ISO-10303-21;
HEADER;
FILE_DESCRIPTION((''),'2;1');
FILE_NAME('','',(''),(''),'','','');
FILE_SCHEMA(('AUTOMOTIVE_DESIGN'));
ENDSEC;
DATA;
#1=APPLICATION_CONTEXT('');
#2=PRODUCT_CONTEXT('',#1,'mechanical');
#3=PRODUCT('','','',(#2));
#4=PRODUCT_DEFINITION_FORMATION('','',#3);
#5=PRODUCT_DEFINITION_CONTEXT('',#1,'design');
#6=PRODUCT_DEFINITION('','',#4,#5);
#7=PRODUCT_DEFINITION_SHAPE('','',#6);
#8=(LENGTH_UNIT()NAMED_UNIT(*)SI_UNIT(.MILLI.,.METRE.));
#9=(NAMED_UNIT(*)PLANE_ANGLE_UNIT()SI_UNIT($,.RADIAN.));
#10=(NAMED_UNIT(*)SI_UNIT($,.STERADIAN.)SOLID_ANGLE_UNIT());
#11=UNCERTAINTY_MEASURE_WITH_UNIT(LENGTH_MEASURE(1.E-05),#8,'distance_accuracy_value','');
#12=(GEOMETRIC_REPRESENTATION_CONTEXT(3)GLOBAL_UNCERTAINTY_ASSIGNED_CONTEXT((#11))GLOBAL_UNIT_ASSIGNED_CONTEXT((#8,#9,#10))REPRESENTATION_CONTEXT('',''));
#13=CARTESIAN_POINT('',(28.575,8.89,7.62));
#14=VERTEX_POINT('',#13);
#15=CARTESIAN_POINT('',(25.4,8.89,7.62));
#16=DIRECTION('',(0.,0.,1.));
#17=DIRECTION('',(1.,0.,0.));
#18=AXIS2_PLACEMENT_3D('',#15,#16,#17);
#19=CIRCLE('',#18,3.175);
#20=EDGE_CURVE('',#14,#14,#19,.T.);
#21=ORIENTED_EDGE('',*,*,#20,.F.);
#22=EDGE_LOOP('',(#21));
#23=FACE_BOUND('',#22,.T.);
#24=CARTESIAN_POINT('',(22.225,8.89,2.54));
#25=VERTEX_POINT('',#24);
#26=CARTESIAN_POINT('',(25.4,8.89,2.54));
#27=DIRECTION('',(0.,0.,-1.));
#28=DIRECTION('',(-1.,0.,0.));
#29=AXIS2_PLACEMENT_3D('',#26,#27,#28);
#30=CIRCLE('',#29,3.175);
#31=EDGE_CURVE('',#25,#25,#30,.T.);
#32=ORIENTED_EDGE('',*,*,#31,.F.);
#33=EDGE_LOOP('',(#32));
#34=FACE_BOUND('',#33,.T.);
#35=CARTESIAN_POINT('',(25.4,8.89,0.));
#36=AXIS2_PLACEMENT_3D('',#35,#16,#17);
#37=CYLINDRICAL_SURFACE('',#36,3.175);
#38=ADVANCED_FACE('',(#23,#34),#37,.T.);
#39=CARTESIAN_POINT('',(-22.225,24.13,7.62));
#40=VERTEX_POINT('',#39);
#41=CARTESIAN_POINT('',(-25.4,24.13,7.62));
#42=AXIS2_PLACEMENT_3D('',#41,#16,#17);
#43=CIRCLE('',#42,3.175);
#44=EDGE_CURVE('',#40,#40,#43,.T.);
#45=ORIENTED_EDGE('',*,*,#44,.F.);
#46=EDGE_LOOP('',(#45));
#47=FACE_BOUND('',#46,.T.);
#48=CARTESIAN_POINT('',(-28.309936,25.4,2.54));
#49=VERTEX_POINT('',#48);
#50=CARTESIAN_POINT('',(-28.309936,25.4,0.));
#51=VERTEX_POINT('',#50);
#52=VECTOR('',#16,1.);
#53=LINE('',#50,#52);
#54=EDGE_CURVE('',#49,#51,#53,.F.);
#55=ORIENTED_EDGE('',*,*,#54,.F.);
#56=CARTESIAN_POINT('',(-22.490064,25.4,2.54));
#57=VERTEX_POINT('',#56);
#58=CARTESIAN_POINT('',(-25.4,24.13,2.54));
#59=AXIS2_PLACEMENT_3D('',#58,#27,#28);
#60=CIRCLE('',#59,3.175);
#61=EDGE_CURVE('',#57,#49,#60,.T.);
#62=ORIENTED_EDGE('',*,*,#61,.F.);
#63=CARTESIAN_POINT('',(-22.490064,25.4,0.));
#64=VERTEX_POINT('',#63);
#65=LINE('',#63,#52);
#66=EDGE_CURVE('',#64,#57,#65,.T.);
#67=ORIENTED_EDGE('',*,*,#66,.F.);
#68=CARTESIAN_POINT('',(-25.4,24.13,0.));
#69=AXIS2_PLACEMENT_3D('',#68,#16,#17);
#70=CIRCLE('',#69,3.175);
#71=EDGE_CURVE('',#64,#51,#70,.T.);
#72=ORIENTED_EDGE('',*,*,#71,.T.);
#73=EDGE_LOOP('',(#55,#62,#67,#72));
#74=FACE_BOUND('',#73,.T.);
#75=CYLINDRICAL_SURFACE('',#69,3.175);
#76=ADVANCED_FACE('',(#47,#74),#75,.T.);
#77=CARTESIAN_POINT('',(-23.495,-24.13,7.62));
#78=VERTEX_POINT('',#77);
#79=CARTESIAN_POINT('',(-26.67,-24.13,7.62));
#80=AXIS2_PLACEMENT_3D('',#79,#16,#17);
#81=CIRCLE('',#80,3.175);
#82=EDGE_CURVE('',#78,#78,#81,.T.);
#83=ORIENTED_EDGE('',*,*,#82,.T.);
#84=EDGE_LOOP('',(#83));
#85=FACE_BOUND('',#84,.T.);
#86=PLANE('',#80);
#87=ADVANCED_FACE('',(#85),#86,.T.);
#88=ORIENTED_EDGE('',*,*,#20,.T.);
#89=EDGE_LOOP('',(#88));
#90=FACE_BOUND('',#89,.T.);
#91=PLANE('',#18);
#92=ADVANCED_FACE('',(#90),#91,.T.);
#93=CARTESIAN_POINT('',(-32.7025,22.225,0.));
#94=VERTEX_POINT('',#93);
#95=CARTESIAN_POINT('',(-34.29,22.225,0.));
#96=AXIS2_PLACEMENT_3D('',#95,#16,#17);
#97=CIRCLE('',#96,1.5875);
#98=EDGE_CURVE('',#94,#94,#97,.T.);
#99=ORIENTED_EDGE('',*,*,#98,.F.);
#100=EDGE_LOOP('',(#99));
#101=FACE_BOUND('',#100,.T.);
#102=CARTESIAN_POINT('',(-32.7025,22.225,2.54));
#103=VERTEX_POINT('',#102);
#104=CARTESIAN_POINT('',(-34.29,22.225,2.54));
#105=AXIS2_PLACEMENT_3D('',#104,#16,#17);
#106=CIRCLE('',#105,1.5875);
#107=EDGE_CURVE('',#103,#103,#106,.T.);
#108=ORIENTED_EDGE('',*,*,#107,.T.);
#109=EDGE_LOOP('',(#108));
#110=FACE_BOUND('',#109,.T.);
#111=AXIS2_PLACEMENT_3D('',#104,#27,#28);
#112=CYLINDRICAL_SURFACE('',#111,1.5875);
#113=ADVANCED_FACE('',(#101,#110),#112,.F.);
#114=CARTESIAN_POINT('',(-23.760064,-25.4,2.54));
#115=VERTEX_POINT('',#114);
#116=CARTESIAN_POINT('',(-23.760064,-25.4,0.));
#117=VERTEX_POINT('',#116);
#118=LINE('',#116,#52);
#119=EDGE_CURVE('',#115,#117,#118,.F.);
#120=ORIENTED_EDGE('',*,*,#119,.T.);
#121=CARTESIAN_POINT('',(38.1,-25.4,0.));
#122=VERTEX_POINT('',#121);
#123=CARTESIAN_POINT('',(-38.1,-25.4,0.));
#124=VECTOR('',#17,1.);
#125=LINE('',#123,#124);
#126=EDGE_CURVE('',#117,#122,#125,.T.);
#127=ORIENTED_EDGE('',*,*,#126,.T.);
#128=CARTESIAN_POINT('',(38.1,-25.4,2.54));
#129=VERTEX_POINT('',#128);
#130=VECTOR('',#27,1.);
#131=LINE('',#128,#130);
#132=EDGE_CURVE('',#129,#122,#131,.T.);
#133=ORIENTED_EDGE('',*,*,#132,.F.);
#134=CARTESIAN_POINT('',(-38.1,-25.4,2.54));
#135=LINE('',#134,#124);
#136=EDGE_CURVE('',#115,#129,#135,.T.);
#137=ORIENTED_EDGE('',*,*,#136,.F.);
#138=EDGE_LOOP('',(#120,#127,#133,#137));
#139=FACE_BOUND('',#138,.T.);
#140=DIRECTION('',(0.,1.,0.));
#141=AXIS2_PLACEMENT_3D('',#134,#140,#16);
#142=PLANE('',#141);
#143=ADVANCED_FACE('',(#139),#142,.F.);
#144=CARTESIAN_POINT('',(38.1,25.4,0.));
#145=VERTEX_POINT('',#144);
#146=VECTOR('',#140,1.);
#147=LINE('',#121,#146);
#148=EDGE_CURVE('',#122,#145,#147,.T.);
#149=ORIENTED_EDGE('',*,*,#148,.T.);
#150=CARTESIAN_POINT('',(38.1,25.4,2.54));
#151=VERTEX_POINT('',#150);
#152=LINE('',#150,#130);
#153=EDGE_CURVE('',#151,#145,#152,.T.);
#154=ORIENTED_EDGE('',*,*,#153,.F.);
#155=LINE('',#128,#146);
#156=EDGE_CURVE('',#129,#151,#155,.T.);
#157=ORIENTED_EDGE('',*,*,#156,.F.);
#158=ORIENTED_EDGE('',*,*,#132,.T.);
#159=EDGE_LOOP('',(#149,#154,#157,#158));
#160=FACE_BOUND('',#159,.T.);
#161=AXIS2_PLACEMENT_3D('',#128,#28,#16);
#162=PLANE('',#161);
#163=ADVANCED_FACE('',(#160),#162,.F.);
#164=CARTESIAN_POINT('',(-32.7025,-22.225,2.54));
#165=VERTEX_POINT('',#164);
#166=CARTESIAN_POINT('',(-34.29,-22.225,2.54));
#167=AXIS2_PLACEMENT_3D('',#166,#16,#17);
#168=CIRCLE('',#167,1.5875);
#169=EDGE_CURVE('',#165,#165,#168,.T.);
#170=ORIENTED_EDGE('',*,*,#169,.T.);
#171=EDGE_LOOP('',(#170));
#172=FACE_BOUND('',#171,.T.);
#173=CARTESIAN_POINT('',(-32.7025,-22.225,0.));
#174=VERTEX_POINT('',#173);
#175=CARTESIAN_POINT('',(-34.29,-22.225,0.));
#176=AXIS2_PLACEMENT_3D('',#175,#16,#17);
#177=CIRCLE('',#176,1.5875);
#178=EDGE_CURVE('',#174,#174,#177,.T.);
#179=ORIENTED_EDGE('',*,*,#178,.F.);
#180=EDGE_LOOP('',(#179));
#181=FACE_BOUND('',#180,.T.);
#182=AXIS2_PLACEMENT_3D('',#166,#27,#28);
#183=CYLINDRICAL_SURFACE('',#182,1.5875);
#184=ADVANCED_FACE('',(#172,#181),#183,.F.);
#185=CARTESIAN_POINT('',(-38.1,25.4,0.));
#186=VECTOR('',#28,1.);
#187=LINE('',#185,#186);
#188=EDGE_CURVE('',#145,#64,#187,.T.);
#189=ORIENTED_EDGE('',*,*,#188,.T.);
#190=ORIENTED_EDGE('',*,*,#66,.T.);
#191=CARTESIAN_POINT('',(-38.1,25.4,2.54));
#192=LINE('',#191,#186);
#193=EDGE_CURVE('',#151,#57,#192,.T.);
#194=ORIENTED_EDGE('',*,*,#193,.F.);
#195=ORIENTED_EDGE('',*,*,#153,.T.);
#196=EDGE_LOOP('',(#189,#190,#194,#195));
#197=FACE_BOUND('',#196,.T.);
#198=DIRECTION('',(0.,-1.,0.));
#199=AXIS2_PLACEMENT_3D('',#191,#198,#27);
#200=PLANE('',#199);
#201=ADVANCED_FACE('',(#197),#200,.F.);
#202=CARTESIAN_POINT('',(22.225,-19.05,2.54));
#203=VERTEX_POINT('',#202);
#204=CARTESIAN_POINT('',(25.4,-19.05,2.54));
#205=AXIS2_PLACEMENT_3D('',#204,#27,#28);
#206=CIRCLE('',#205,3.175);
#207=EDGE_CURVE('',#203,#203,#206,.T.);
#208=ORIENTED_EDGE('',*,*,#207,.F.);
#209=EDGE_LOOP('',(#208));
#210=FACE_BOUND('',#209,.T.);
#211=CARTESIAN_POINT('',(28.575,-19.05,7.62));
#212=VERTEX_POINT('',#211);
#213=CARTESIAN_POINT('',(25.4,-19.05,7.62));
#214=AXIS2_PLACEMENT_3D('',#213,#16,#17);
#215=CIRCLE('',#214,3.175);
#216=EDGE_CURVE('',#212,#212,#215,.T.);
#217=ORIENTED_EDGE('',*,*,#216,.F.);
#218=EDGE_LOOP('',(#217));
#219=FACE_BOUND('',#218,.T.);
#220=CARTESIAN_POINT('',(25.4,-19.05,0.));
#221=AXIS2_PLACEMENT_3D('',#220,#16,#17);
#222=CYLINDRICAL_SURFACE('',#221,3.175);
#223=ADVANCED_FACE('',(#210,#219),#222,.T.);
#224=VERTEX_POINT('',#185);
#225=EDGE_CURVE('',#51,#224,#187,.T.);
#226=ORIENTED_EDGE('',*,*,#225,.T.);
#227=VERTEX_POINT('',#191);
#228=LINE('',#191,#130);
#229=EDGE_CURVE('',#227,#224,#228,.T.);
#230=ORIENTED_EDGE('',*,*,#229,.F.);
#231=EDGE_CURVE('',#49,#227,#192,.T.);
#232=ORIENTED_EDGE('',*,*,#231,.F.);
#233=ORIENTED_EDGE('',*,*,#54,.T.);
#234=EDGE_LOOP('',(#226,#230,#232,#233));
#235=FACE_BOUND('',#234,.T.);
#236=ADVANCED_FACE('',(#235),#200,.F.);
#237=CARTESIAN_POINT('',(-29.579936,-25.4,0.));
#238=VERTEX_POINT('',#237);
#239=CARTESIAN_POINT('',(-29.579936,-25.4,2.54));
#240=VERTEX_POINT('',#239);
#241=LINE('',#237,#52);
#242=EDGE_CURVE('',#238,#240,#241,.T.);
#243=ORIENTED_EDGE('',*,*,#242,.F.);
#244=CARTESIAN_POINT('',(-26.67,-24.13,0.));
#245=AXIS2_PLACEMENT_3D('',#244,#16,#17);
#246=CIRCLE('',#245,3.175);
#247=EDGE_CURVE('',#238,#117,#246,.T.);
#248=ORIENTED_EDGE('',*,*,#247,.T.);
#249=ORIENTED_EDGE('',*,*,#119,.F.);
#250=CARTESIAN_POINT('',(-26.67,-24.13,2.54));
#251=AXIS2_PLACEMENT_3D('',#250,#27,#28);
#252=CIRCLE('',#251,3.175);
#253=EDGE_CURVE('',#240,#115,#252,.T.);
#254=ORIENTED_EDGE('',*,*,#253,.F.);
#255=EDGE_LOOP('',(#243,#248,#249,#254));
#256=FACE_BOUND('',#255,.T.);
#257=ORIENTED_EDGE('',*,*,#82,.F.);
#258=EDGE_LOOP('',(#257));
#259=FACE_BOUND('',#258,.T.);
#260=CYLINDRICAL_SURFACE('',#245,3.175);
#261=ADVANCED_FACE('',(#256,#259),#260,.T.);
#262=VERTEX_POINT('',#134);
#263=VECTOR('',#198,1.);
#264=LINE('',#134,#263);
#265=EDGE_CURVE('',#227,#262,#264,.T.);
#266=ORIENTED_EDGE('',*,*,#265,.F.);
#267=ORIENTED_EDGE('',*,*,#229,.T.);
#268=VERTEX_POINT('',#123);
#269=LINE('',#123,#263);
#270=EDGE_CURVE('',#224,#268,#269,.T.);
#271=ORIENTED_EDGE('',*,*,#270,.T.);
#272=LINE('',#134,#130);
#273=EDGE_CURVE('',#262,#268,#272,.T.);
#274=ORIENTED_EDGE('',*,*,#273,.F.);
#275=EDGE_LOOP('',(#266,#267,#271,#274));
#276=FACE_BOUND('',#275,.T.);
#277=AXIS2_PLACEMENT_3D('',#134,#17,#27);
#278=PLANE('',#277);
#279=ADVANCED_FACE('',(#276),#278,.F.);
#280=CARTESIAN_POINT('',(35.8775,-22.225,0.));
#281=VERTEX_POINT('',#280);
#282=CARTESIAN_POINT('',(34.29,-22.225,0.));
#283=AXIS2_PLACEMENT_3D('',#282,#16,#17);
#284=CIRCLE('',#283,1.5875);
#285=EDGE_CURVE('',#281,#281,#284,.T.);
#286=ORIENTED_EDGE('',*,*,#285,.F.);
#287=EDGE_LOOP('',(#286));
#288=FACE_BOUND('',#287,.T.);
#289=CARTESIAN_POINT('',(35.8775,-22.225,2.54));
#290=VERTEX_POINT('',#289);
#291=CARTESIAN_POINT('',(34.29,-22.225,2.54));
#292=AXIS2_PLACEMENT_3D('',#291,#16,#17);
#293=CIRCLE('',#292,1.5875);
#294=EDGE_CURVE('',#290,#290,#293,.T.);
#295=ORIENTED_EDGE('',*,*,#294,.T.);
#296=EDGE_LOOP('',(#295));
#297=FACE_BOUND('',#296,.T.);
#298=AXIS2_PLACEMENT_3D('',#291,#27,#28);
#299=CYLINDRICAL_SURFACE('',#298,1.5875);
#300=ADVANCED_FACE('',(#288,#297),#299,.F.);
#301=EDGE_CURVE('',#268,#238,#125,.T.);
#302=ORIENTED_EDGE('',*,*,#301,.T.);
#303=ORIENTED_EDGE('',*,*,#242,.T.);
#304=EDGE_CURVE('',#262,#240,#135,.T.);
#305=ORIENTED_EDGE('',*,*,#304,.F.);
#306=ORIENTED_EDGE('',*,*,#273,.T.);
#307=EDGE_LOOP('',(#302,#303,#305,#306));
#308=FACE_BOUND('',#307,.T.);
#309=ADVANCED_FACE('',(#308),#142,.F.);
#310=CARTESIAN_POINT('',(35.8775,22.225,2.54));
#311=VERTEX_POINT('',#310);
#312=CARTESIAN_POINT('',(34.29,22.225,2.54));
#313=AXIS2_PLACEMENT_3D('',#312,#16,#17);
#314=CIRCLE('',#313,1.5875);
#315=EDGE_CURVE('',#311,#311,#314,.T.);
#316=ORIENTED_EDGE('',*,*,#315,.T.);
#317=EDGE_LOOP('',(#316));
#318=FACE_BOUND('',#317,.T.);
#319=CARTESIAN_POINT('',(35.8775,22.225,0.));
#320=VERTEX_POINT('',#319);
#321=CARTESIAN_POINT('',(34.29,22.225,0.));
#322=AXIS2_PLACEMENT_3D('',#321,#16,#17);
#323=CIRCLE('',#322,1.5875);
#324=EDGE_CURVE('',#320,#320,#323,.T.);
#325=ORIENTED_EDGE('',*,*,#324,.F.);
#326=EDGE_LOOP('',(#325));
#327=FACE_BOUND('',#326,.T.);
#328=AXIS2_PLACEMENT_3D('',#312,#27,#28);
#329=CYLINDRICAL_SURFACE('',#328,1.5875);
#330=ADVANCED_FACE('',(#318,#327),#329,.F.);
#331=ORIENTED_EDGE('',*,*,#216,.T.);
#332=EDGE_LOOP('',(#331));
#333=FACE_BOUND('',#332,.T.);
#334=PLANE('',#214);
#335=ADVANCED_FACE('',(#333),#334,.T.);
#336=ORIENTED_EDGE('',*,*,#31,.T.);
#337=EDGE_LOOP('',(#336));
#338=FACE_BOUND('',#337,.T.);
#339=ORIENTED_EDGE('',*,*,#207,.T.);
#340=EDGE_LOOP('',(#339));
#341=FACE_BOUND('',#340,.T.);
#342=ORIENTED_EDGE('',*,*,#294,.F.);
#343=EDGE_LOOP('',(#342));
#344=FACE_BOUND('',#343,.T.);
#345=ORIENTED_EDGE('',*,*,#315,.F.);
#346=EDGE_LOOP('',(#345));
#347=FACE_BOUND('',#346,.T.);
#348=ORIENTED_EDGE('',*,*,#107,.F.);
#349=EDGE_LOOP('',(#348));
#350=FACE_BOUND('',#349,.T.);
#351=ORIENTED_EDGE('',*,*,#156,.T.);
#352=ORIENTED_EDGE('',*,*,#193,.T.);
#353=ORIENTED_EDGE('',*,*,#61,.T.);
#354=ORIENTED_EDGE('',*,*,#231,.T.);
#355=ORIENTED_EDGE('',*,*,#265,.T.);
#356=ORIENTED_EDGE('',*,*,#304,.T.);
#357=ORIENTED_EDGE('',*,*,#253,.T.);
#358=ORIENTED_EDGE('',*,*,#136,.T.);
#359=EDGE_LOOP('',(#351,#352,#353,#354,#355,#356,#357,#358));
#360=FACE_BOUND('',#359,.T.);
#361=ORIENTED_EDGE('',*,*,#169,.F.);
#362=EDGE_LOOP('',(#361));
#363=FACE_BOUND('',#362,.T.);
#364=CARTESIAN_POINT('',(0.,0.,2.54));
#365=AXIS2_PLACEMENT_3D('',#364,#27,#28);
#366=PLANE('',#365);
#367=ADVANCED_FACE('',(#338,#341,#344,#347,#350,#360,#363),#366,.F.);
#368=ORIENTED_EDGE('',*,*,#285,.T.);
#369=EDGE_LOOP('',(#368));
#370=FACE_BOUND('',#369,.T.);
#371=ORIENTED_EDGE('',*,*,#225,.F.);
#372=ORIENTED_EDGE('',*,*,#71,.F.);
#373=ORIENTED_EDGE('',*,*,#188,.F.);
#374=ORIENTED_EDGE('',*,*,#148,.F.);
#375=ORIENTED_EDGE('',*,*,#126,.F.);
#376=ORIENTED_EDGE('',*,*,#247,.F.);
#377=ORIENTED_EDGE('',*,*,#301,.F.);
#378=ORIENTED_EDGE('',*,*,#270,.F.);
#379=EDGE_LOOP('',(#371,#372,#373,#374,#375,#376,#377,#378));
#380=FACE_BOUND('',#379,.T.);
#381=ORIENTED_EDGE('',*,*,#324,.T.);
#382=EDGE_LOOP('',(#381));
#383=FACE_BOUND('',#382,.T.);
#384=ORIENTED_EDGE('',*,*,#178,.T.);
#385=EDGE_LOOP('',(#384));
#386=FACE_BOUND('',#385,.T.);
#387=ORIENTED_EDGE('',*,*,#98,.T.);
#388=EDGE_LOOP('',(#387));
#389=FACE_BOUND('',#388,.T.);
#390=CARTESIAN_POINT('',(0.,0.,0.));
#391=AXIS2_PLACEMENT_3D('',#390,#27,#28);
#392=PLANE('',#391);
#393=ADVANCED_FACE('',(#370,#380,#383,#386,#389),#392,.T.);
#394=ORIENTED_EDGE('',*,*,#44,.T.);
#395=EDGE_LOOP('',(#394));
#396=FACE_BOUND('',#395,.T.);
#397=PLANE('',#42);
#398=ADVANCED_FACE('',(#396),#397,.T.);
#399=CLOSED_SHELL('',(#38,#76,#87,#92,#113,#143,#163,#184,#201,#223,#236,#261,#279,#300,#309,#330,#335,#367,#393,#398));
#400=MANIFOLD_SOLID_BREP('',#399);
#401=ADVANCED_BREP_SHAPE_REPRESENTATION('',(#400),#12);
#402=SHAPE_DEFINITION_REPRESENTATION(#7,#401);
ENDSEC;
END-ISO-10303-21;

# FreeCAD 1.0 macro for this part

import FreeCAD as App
import Part
import Sketcher
from FreeCAD import Vector
Q = App.Units.Quantity


def add_polygon(sketch, points):
    """Adds a closed chain of lines whose ends are joined by coincident constraints."""
    first, n = sketch.GeometryCount, len(points)
    for a, b in zip(points, points[1:] + points[:1]):
        sketch.addGeometry(Part.LineSegment(App.Vector(*a, 0), App.Vector(*b, 0)), False)
    for i in range(n):
        sketch.addConstraint(Sketcher.Constraint("Coincident", first + i, 2, first + (i + 1) % n, 1))

doc = App.newDocument("Part")
body = doc.addObject("PartDesign::Body", "Body")

# Sketch on XY plane
sketch1 = body.newObject("Sketcher::SketchObject", "Sketch")
sketch1.AttachmentSupport = (doc.getObject("XY_Plane"), [""])
sketch1.MapMode = "FlatFace"
add_polygon(sketch1, [(-38.1, 25.4), (-38.1, -25.4), (38.1, -25.4), (38.1, 25.4)])  # lines 0-3
sketch1.addGeometry(Part.Circle(Vector(-34.3, -22.2, 0), Vector(0, 0, 1), 1.6), False)  # 4
sketch1.addGeometry(Part.Circle(Vector(34.3, -22.2, 0), Vector(0, 0, 1), 1.6), False)  # 5
sketch1.addGeometry(Part.Circle(Vector(-34.3, 22.2, 0), Vector(0, 0, 1), 1.6), False)  # 6
sketch1.addGeometry(Part.Circle(Vector(34.3, 22.2, 0), Vector(0, 0, 1), 1.6), False)  # 7
sketch1.addConstraint(Sketcher.Constraint("Vertical", 0))
sketch1.addConstraint(Sketcher.Constraint("Horizontal", 1))
sketch1.addConstraint(Sketcher.Constraint("Vertical", 2))
sketch1.addConstraint(Sketcher.Constraint("Horizontal", 3))
sketch1.addConstraint(Sketcher.Constraint("Equal", 4, 5))
sketch1.addConstraint(Sketcher.Constraint("Equal", 5, 6))
sketch1.addConstraint(Sketcher.Constraint("Equal", 6, 7))
sketch1.addConstraint(Sketcher.Constraint("Symmetric", 5, 3, 6, 3, -1, 1))
sketch1.addConstraint(Sketcher.Constraint("Symmetric", 4, 3, 7, 3, -1, 1))
sketch1.addConstraint(Sketcher.Constraint("Symmetric", 0, 2, 2, 2, -1, 1))
sketch1.addConstraint(Sketcher.Constraint("Symmetric", 4, 3, 5, 3, -2))
sketch1.addConstraint(Sketcher.Constraint("DistanceX", 1, 1, 1, 2, Q("3 in")))
sketch1.addConstraint(Sketcher.Constraint("DistanceY", 0, 2, 0, 1, Q("2 in")))
sketch1.addConstraint(Sketcher.Constraint("Diameter", 4, Q("0.125 in")))
sketch1.addConstraint(Sketcher.Constraint("DistanceX", 4, 3, 5, 3, Q("2.7 in")))
sketch1.addConstraint(Sketcher.Constraint("DistanceY", 4, 3, 6, 3, Q("1.75 in")))
pad1 = body.newObject("PartDesign::Pad", "Pad")
pad1.Profile = sketch1
pad1.Length = Q("0.1 in")

# Sketch on XY plane
sketch2 = body.newObject("Sketcher::SketchObject", "Sketch001")
sketch2.AttachmentSupport = (doc.getObject("XY_Plane"), [""])
sketch2.MapMode = "FlatFace"
sketch2.AttachmentOffset = App.Placement(Vector(0, 0, 0.1 * 25.4), App.Rotation())
sketch2.addGeometry(Part.Circle(Vector(-25.4, 24.1, 0), Vector(0, 0, 1), 3.2), False)
sketch2.addGeometry(Part.Circle(Vector(-26.7, -24.1, 0), Vector(0, 0, 1), 3.2), False)
sketch2.addGeometry(Part.Circle(Vector(25.4, 8.9, 0), Vector(0, 0, 1), 3.2), False)
sketch2.addGeometry(Part.Circle(Vector(25.4, -19.1, 0), Vector(0, 0, 1), 3.2), False)
sketch2.addConstraint(Sketcher.Constraint("Equal", 0, 1))
sketch2.addConstraint(Sketcher.Constraint("Equal", 1, 2))
sketch2.addConstraint(Sketcher.Constraint("Equal", 2, 3))
sketch2.addConstraint(Sketcher.Constraint("Vertical", 2, 3, 3, 3))
sketch2.addConstraint(Sketcher.Constraint("Diameter", 0, Q("0.25 in")))
sketch2.addConstraint(Sketcher.Constraint("DistanceX", 0, 3, -1, 1, Q("1 in")))
sketch2.addConstraint(Sketcher.Constraint("DistanceX", -1, 1, 2, 3, Q("1 in")))
sketch2.addConstraint(Sketcher.Constraint("DistanceY", 1, 3, 0, 3, Q("1.9 in")))
sketch2.addConstraint(Sketcher.Constraint("DistanceY", 2, 3, 0, 3, Q("0.6 in")))
sketch2.addConstraint(Sketcher.Constraint("DistanceY", 3, 3, 2, 3, Q("1.1 in")))
sketch2.addConstraint(Sketcher.Constraint("DistanceY", -1, 1, 0, 3, Q("0.95 in")))
sketch2.addConstraint(Sketcher.Constraint("DistanceX", 1, 3, -1, 1, Q("1.05 in")))
pad2 = body.newObject("PartDesign::Pad", "Pad001")
pad2.Profile = sketch2
pad2.Type = "TwoLengths"
pad2.Length = Q("0.2 in")
pad2.Length2 = Q("0.1 in")

doc.recompute()
